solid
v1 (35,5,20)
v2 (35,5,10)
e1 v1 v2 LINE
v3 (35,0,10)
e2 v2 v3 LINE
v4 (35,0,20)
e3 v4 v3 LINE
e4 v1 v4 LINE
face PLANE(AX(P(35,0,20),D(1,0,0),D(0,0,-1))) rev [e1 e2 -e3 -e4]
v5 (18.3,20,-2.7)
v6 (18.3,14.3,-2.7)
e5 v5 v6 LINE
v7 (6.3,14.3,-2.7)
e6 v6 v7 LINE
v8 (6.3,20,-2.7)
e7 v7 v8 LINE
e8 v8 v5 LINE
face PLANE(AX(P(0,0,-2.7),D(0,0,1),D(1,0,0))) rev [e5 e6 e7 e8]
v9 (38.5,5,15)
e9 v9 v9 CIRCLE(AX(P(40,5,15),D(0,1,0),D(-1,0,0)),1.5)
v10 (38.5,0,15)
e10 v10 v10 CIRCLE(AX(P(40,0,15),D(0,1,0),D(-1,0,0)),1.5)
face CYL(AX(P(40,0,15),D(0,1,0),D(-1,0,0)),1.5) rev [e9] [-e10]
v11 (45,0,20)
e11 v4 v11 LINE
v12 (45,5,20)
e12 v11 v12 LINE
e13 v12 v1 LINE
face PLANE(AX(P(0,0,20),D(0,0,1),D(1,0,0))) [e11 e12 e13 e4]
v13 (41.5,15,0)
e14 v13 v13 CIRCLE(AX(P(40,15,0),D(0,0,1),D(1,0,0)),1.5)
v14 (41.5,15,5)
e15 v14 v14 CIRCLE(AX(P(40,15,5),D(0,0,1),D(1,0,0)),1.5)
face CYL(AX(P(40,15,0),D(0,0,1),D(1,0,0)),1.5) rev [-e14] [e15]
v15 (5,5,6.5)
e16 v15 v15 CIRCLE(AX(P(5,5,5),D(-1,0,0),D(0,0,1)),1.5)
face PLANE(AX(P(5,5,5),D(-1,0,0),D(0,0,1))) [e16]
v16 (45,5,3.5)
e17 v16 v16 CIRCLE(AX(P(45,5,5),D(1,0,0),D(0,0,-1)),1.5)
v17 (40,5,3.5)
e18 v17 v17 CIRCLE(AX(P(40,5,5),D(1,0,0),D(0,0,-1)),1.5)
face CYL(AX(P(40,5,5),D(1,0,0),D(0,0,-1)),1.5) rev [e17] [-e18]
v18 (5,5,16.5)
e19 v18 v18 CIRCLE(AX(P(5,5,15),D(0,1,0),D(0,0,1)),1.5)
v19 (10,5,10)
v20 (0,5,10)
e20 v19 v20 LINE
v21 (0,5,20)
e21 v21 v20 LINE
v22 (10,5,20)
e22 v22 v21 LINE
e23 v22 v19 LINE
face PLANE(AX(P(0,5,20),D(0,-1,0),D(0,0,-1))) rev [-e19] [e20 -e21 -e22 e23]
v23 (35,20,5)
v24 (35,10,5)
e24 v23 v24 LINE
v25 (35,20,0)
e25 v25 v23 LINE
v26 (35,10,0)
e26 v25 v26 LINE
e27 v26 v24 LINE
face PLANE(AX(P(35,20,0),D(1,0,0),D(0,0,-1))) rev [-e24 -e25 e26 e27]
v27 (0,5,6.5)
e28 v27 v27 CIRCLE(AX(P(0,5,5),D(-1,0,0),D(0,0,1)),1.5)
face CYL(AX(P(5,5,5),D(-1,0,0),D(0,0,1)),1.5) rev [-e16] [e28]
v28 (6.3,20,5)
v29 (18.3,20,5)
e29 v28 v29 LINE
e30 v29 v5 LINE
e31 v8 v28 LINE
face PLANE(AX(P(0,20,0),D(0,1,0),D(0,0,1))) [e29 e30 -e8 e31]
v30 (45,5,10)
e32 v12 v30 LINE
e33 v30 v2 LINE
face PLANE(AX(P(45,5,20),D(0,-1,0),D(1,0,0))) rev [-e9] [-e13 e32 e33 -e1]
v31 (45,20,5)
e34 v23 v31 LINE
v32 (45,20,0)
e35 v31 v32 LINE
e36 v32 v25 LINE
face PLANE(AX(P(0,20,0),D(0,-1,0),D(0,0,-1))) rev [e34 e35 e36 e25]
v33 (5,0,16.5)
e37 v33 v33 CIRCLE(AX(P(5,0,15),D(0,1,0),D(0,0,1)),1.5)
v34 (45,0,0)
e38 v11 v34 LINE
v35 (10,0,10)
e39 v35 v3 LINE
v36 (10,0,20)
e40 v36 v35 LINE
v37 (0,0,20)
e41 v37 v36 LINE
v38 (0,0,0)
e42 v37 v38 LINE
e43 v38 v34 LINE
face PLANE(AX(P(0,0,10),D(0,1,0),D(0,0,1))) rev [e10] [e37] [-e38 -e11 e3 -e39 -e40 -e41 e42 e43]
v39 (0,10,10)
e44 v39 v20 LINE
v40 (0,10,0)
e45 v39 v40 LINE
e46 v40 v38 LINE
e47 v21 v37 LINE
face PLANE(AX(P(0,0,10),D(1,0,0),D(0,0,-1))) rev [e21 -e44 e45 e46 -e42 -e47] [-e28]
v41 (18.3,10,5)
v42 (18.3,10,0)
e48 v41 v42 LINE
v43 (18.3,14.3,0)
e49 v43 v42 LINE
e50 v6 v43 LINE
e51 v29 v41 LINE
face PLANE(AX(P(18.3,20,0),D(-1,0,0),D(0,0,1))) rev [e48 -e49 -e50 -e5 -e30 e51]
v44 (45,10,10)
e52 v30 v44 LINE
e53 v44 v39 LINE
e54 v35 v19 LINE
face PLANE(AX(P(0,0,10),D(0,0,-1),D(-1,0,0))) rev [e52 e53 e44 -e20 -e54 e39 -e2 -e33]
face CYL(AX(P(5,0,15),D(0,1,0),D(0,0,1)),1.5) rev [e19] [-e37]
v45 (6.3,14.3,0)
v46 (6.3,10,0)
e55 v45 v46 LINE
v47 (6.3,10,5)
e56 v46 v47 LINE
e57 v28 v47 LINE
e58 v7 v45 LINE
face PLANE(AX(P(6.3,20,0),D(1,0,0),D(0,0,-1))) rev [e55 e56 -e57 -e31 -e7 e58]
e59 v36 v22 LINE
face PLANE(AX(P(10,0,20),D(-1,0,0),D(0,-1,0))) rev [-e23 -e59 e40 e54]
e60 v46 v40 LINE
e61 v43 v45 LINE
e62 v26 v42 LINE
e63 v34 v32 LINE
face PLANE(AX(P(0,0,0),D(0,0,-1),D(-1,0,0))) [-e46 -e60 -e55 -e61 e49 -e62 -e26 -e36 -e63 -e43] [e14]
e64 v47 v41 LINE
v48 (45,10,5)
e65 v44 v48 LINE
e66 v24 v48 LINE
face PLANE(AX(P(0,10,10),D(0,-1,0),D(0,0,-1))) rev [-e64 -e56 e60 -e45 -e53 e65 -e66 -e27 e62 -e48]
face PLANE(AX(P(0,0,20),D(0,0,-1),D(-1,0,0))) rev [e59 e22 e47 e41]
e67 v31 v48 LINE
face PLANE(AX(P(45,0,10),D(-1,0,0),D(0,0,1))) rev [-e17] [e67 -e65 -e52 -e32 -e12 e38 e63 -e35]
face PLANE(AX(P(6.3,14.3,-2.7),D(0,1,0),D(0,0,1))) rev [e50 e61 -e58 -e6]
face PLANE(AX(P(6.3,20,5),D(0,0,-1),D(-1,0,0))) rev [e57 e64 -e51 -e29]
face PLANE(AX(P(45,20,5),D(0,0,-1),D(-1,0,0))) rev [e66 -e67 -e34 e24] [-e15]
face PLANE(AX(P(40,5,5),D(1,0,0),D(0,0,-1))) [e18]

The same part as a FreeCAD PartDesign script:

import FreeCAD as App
import Part
import Sketcher
from FreeCAD import Vector
Q = App.Units.Quantity


def add_polygon(sketch, points):
    """Adds a closed chain of lines whose ends are joined by coincident constraints."""
    first, n = sketch.GeometryCount, len(points)
    for a, b in zip(points, points[1:] + points[:1]):
        sketch.addGeometry(Part.LineSegment(App.Vector(*a, 0), App.Vector(*b, 0)), False)
    for i in range(n):
        sketch.addConstraint(Sketcher.Constraint("Coincident", first + i, 2, first + (i + 1) % n, 1))

doc = App.newDocument("Part")
body = doc.addObject("PartDesign::Body", "Body")

sketch1 = doc.addObject("Sketcher::SketchObject", "Sketch")
body.addObject(sketch1)
sketch1.AttachmentSupport = (doc.XY_Plane, [""])
sketch1.MapMode = "FlatFace"
add_polygon(sketch1, [(0, 10), (0, 0), (45, 0), (45, 10)])
sketch1.addConstraint([
    Sketcher.Constraint("Vertical", 0),
    Sketcher.Constraint("Horizontal", 1),
    Sketcher.Constraint("Vertical", 2),
    Sketcher.Constraint("Horizontal", 3),
    Sketcher.Constraint("Coincident", 0, 2, -1, 1),
    Sketcher.Constraint("DistanceX", 1, 1, 1, 2, Q("45 mm")),
    Sketcher.Constraint("DistanceY", 0, 2, 0, 1, Q("10 mm")),
])
pad1 = doc.addObject("PartDesign::Pad", "Pad")
body.addObject(pad1)
pad1.Profile = sketch1
pad1.Length = 10

sketch2 = doc.addObject("Sketcher::SketchObject", "Sketch001")
body.addObject(sketch2)
sketch2.AttachmentSupport = (doc.XZ_Plane, [""])
sketch2.MapMode = "FlatFace"
sketch2.AttachmentOffset = App.Placement(Vector(0, 0, -10), App.Rotation())
add_polygon(sketch2, [(35, 0), (35, 5), (45, 5), (45, 0)])
add_polygon(sketch2, [(6, 0), (6, 5), (18, 5), (18, 0)])
sketch2.addConstraint([
    Sketcher.Constraint("Vertical", 0),
    Sketcher.Constraint("Horizontal", 1),
    Sketcher.Constraint("Vertical", 2),
    Sketcher.Constraint("Horizontal", 3),
    Sketcher.Constraint("Vertical", 4),
    Sketcher.Constraint("Horizontal", 5),
    Sketcher.Constraint("Vertical", 6),
    Sketcher.Constraint("Horizontal", 7),
    Sketcher.Constraint("PointOnObject", 2, 2, -1),
    Sketcher.Constraint("PointOnObject", 6, 2, -1),
    Sketcher.Constraint("Horizontal", 1, 2, 4, 2),
    Sketcher.Constraint("DistanceX", 1, 1, 1, 2, Q("10 mm")),
    Sketcher.Constraint("DistanceX", 5, 1, 5, 2, Q("12 mm")),
    Sketcher.Constraint("DistanceY", 0, 1, 0, 2, Q("5 mm")),
    Sketcher.Constraint("DistanceX", -1, 1, 0, 2, Q("35 mm")),
    Sketcher.Constraint("DistanceX", -1, 1, 4, 2, Q("6.3 mm")),
])
pad2 = doc.addObject("PartDesign::Pad", "Pad001")
body.addObject(pad2)
pad2.Profile = sketch2
pad2.Length = 10
pad2.Reversed = True

sketch3 = doc.addObject("Sketcher::SketchObject", "Sketch002")
body.addObject(sketch3)
sketch3.AttachmentSupport = (doc.XY_Plane, [""])
sketch3.MapMode = "FlatFace"
sketch3.AttachmentOffset = App.Placement(Vector(0, 0, 10), App.Rotation())
add_polygon(sketch3, [(0, 5), (0, 0), (10, 0), (10, 5)])
add_polygon(sketch3, [(35, 5), (35, 0), (45, 0), (45, 5)])
sketch3.addConstraint([
    Sketcher.Constraint("Vertical", 0),
    Sketcher.Constraint("Horizontal", 1),
    Sketcher.Constraint("Vertical", 2),
    Sketcher.Constraint("Horizontal", 3),
    Sketcher.Constraint("Vertical", 4),
    Sketcher.Constraint("Horizontal", 5),
    Sketcher.Constraint("Vertical", 6),
    Sketcher.Constraint("Horizontal", 7),
    Sketcher.Constraint("Coincident", 0, 2, -1, 1),
    Sketcher.Constraint("PointOnObject", 4, 2, -1),
    Sketcher.Constraint("Horizontal", 3, 2, 6, 2),
    Sketcher.Constraint("Equal", 3, 5),
    Sketcher.Constraint("DistanceX", 1, 1, 1, 2, Q("10 mm")),
    Sketcher.Constraint("DistanceY", 0, 2, 0, 1, Q("5 mm")),
    Sketcher.Constraint("DistanceX", -1, 1, 4, 2, Q("35 mm")),
])
pad3 = doc.addObject("PartDesign::Pad", "Pad002")
body.addObject(pad3)
pad3.Profile = sketch3
pad3.Length = 10

sketch4 = doc.addObject("Sketcher::SketchObject", "Sketch003")
body.addObject(sketch4)
sketch4.AttachmentSupport = (doc.YZ_Plane, [""])
sketch4.MapMode = "FlatFace"
sketch4.addGeometry(Part.Circle(Vector(5, 5, 0), Vector(0, 0, 1), 1.5), False)
sketch4.addConstraint([
    Sketcher.Constraint("Diameter", 0, Q("3 mm")),
    Sketcher.Constraint("DistanceX", -1, 1, 0, 3, Q("5 mm")),
    Sketcher.Constraint("DistanceY", -1, 1, 0, 3, Q("5 mm")),
])
pocket1 = doc.addObject("PartDesign::Pocket", "Pocket")
body.addObject(pocket1)
pocket1.Profile = sketch4
pocket1.Length = 5
pocket1.Reversed = True

sketch5 = doc.addObject("Sketcher::SketchObject", "Sketch004")
body.addObject(sketch5)
sketch5.AttachmentSupport = (doc.XZ_Plane, [""])
sketch5.MapMode = "FlatFace"
sketch5.AttachmentOffset = App.Placement(Vector(0, 0, -5), App.Rotation())
sketch5.addGeometry(Part.Circle(Vector(5, 15, 0), Vector(0, 0, 1), 1.5), False)
sketch5.addConstraint([
    Sketcher.Constraint("Diameter", 0, Q("3 mm")),
    Sketcher.Constraint("DistanceX", -1, 1, 0, 3, Q("5 mm")),
    Sketcher.Constraint("DistanceY", -1, 1, 0, 3, Q("15 mm")),
])
pocket2 = doc.addObject("PartDesign::Pocket", "Pocket001")
body.addObject(pocket2)
pocket2.Profile = sketch5
pocket2.Length = 5
pocket2.Reversed = True

sketch6 = doc.addObject("Sketcher::SketchObject", "Sketch005")
body.addObject(sketch6)
sketch6.AttachmentSupport = (doc.YZ_Plane, [""])
sketch6.MapMode = "FlatFace"
sketch6.AttachmentOffset = App.Placement(Vector(0, 0, 40), App.Rotation())
sketch6.addGeometry(Part.Circle(Vector(5, 5, 0), Vector(0, 0, 1), 1.5), False)
sketch6.addConstraint([
    Sketcher.Constraint("Diameter", 0, Q("3 mm")),
    Sketcher.Constraint("DistanceX", -1, 1, 0, 3, Q("5 mm")),
    Sketcher.Constraint("DistanceY", -1, 1, 0, 3, Q("5 mm")),
])
pocket3 = doc.addObject("PartDesign::Pocket", "Pocket002")
body.addObject(pocket3)
pocket3.Profile = sketch6
pocket3.Length = 5
pocket3.Reversed = True

sketch7 = doc.addObject("Sketcher::SketchObject", "Sketch006")
body.addObject(sketch7)
sketch7.AttachmentSupport = (doc.XZ_Plane, [""])
sketch7.MapMode = "FlatFace"
sketch7.AttachmentOffset = App.Placement(Vector(0, 0, -5), App.Rotation())
sketch7.addGeometry(Part.Circle(Vector(40, 15, 0), Vector(0, 0, 1), 1.5), False)
sketch7.addConstraint([
    Sketcher.Constraint("Diameter", 0, Q("3 mm")),
    Sketcher.Constraint("DistanceX", -1, 1, 0, 3, Q("40 mm")),
    Sketcher.Constraint("DistanceY", -1, 1, 0, 3, Q("15 mm")),
])
pocket4 = doc.addObject("PartDesign::Pocket", "Pocket003")
body.addObject(pocket4)
pocket4.Profile = sketch7
pocket4.Length = 5
pocket4.Reversed = True

sketch8 = doc.addObject("Sketcher::SketchObject", "Sketch007")
body.addObject(sketch8)
sketch8.AttachmentSupport = (doc.XY_Plane, [""])
sketch8.MapMode = "FlatFace"
sketch8.AttachmentOffset = App.Placement(Vector(0, 0, 5), App.Rotation())
sketch8.addGeometry(Part.Circle(Vector(40, 15, 0), Vector(0, 0, 1), 1.5), False)
sketch8.addConstraint([
    Sketcher.Constraint("Diameter", 0, Q("3 mm")),
    Sketcher.Constraint("DistanceX", -1, 1, 0, 3, Q("40 mm")),
    Sketcher.Constraint("DistanceY", -1, 1, 0, 3, Q("15 mm")),
])
pocket5 = doc.addObject("PartDesign::Pocket", "Pocket004")
body.addObject(pocket5)
pocket5.Profile = sketch8
pocket5.Length = 5

sketch9 = doc.addObject("Sketcher::SketchObject", "Sketch008")
body.addObject(sketch9)
sketch9.AttachmentSupport = (doc.XY_Plane, [""])
sketch9.MapMode = "FlatFace"
add_polygon(sketch9, [(18, 20), (18, 14), (6, 14), (6, 20)])
sketch9.addConstraint([
    Sketcher.Constraint("Vertical", 0),
    Sketcher.Constraint("Horizontal", 1),
    Sketcher.Constraint("Vertical", 2),
    Sketcher.Constraint("Horizontal", 3),
    Sketcher.Constraint("DistanceX", 1, 2, 1, 1, Q("12 mm")),
    Sketcher.Constraint("DistanceY", 0, 2, 0, 1, Q("5.7 mm")),
    Sketcher.Constraint("DistanceY", -1, 1, 2, 2, Q("20 mm")),
    Sketcher.Constraint("DistanceX", -1, 1, 0, 2, Q("18.3 mm")),
])
pad4 = doc.addObject("PartDesign::Pad", "Pad003")
body.addObject(pad4)
pad4.Profile = sketch9
pad4.Length = 2.7
pad4.Reversed = True

doc.recompute()
